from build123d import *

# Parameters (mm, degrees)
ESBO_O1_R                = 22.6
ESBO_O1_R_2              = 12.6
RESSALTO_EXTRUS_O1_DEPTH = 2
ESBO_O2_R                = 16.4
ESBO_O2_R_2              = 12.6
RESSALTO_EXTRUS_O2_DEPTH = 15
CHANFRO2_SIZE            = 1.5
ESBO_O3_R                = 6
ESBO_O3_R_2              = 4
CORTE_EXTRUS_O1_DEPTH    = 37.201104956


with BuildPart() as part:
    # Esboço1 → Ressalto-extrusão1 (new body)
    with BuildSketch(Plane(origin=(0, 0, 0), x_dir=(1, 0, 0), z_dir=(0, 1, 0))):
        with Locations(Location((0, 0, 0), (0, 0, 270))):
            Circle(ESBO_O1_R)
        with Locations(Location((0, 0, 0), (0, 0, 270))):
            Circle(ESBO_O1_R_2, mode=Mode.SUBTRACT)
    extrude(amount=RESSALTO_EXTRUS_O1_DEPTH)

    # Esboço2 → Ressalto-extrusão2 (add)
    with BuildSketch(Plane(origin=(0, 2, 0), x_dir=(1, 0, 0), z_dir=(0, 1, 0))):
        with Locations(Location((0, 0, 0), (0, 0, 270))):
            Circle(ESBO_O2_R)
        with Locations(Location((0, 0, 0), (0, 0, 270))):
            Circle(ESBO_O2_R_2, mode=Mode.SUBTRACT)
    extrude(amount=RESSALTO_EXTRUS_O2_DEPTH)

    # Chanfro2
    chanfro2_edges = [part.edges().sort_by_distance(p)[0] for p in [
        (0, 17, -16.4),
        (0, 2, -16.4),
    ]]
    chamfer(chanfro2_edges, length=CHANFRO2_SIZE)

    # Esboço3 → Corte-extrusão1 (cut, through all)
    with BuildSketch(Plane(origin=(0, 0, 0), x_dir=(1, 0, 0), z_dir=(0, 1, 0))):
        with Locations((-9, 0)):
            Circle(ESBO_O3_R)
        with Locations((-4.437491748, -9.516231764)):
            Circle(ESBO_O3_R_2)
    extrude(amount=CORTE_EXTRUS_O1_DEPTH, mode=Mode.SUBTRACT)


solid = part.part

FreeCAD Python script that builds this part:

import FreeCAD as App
import Part
import Sketcher

V = App.Vector
Q = App.Units.Quantity


def edges_at(feature, points):
    """Names of the edges that pass closest to the given points."""
    edges = feature.Shape.Edges
    near = lambda p: min(range(len(edges)), key=lambda i: edges[i].distToShape(Part.Vertex(*p))[0])
    return sorted({f"Edge{near(p) + 1}" for p in points})

doc = App.newDocument("Part")
body = doc.addObject("PartDesign::Body", "Body")

sketch1 = body.newObject("Sketcher::SketchObject", "Sketch")
sketch1.AttachmentSupport = (doc.getObject("XZ_Plane"), [""])
sketch1.MapMode = "FlatFace"
sketch1.addGeometry([
    Part.Circle(V(0, 0, 0), V(0, 0, 1), 23),
    Part.Circle(V(0, 0, 0), V(0, 0, 1), 13),
], False)
sketch1.addConstraint([
    Sketcher.Constraint("Coincident", 0, 3, -1, 1),
    Sketcher.Constraint("Coincident", 1, 3, -1, 1),
    Sketcher.Constraint("Diameter", 0, Q("45.2 mm")),
    Sketcher.Constraint("Diameter", 1, Q("25.2 mm")),
])
pad1 = body.newObject("PartDesign::Pad", "Pad")
pad1.Profile = sketch1
pad1.Length = 2
pad1.Reversed = True

sketch2 = body.newObject("Sketcher::SketchObject", "Sketch001")
sketch2.AttachmentSupport = (doc.getObject("XZ_Plane"), [""])
sketch2.MapMode = "FlatFace"
sketch2.AttachmentOffset = App.Placement(V(0, 0, -2), App.Rotation())
sketch2.addGeometry([
    Part.Circle(V(0, 0, 0), V(0, 0, 1), 16),
    Part.Circle(V(0, 0, 0), V(0, 0, 1), 13),
], False)
sketch2.addConstraint([
    Sketcher.Constraint("Coincident", 0, 3, -1, 1),
    Sketcher.Constraint("Coincident", 1, 3, -1, 1),
    Sketcher.Constraint("Diameter", 0, Q("32.8 mm")),
    Sketcher.Constraint("Diameter", 1, Q("25.2 mm")),
])
pad2 = body.newObject("PartDesign::Pad", "Pad001")
pad2.Profile = sketch2
pad2.Length = 15
pad2.Reversed = True
doc.recompute()

chamfer = body.newObject("PartDesign::Chamfer", "Chamfer")
chamfer.Base = (pad2, edges_at(pad2, [(0, 17, -16.4), (0, 2, -16.4)]))
chamfer.Size = 1.5

sketch3 = body.newObject("Sketcher::SketchObject", "Sketch002")
sketch3.AttachmentSupport = (doc.getObject("XZ_Plane"), [""])
sketch3.MapMode = "FlatFace"
sketch3.addGeometry([
    Part.Circle(V(-9, 0, 0), V(0, 0, 1), 6),
    Part.Circle(V(-4.4, 9.5, 0), V(0, 0, 1), 4),
], False)
sketch3.addConstraint([
    Sketcher.Constraint("PointOnObject", 0, 3, -1),
    Sketcher.Constraint("Diameter", 0, Q("12 mm")),
    Sketcher.Constraint("Diameter", 1, Q("8 mm")),
    Sketcher.Constraint("DistanceX", 0, 3, -1, 1, Q("9 mm")),
    Sketcher.Constraint("DistanceX", 1, 3, -1, 1, Q("4.437492 mm")),
    Sketcher.Constraint("DistanceY", -1, 1, 1, 3, Q("9.516232 mm")),
])
pocket1 = body.newObject("PartDesign::Pocket", "Pocket")
pocket1.Profile = sketch3
pocket1.Type = "ThroughAll"

doc.recompute()
